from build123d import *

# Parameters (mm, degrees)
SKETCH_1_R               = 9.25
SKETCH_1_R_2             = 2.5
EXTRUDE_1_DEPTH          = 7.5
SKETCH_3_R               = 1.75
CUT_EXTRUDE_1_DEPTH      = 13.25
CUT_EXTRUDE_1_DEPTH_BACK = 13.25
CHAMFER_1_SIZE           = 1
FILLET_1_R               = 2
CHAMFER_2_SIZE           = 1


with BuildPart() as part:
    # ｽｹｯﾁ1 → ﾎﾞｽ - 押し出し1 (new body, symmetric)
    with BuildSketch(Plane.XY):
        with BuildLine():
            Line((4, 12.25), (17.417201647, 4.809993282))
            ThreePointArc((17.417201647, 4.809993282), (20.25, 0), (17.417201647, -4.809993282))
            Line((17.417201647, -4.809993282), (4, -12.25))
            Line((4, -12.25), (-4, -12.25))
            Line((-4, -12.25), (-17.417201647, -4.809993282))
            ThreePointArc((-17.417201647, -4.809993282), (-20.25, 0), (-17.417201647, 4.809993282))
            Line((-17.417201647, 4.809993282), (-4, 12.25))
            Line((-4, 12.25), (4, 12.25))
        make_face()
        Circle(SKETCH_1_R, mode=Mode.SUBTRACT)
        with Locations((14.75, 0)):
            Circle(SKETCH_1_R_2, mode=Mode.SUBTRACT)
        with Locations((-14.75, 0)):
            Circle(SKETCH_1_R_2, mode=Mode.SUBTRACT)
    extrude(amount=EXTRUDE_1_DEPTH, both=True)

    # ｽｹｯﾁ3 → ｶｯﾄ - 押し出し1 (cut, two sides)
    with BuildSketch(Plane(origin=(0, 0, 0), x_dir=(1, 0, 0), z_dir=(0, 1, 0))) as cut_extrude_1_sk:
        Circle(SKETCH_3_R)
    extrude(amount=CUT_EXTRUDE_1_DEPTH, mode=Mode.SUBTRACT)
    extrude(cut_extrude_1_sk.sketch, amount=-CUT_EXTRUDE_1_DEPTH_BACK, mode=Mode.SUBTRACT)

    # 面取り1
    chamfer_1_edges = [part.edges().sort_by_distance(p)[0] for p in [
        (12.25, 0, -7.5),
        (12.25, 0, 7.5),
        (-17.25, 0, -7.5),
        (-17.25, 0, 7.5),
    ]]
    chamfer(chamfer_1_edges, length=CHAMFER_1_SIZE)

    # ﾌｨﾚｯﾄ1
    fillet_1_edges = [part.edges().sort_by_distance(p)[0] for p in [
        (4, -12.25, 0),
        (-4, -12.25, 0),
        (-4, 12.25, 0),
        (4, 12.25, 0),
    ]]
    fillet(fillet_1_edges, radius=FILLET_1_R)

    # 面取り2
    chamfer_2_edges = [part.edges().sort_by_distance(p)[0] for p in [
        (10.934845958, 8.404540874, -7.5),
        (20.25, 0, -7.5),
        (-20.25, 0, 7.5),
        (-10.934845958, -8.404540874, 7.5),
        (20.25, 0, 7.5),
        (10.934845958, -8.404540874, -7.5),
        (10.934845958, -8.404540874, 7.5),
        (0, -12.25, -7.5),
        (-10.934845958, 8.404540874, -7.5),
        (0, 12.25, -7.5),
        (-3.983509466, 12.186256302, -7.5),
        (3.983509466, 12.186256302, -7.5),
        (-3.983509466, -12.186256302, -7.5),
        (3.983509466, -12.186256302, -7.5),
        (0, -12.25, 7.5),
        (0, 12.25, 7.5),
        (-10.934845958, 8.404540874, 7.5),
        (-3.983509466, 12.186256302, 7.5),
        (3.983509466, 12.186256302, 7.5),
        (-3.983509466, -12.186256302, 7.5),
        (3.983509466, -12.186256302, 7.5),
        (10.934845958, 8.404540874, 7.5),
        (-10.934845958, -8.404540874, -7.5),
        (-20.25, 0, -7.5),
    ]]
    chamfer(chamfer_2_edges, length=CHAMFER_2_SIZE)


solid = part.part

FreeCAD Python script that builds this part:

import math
import FreeCAD as App
import Part
import Sketcher
Q = App.Units.Quantity


def edges_at(feature, points):
    """Names of the edges that pass closest to the given points."""
    edges = feature.Shape.Edges
    near = lambda p: min(range(len(edges)), key=lambda i: edges[i].distToShape(Part.Vertex(*p))[0])
    return sorted({f"Edge{near(p) + 1}" for p in points})

doc = App.newDocument("Part")
body = doc.addObject("PartDesign::Body", "Body")

# Sketch on XY plane
sketch1 = body.newObject("Sketcher::SketchObject", "Sketch")
sketch1.AttachmentSupport = (doc.getObject("XY_Plane"), [""])
sketch1.MapMode = "FlatFace"
sketch1.addGeometry(Part.LineSegment(App.Vector(17.4, 4.8, 0), App.Vector(4, 12.2, 0)), False)
sketch1.addGeometry(Part.LineSegment(App.Vector(4, 12.2, 0), App.Vector(-4, 12.2, 0)), False)
sketch1.addGeometry(Part.LineSegment(App.Vector(-4, 12.2, 0), App.Vector(-17.4, 4.8, 0)), False)
sketch1.addGeometry(Part.ArcOfCircle(Part.Circle(App.Vector(-14.8, 0, 0), App.Vector(0, 0, 1), 5.5), math.radians(119), math.radians(241)), False)
sketch1.addGeometry(Part.LineSegment(App.Vector(-17.4, -4.8, 0), App.Vector(-4, -12.2, 0)), False)
sketch1.addGeometry(Part.LineSegment(App.Vector(-4, -12.2, 0), App.Vector(4, -12.2, 0)), False)
sketch1.addGeometry(Part.LineSegment(App.Vector(4, -12.2, 0), App.Vector(17.4, -4.8, 0)), False)
sketch1.addGeometry(Part.ArcOfCircle(Part.Circle(App.Vector(14.8, 0, 0), App.Vector(0, 0, 1), 5.5), math.radians(-61), math.radians(61)), False)
sketch1.addGeometry(Part.Circle(App.Vector(14.8, 0, 0), App.Vector(0, 0, 1), 2.5), False)
sketch1.addGeometry(Part.Circle(App.Vector(0, 0, 0), App.Vector(0, 0, 1), 9.2), False)
sketch1.addGeometry(Part.Circle(App.Vector(-14.8, 0, 0), App.Vector(0, 0, 1), 2.5), False)
sketch1.addConstraint(Sketcher.Constraint("Coincident", 0, 2, 1, 1))
sketch1.addConstraint(Sketcher.Constraint("Coincident", 1, 2, 2, 1))
sketch1.addConstraint(Sketcher.Constraint("Tangent", 2, 2, 3, 1))
sketch1.addConstraint(Sketcher.Constraint("Tangent", 3, 2, 4, 1))
sketch1.addConstraint(Sketcher.Constraint("Coincident", 4, 2, 5, 1))
sketch1.addConstraint(Sketcher.Constraint("Coincident", 5, 2, 6, 1))
sketch1.addConstraint(Sketcher.Constraint("Tangent", 6, 2, 7, 1))
sketch1.addConstraint(Sketcher.Constraint("Tangent", 7, 2, 0, 1))
sketch1.addConstraint(Sketcher.Constraint("Horizontal", 1))
sketch1.addConstraint(Sketcher.Constraint("Horizontal", 5))
sketch1.addConstraint(Sketcher.Constraint("Coincident", 9, 3, -1, 1))
sketch1.addConstraint(Sketcher.Constraint("Coincident", 8, 3, 7, 3))
sketch1.addConstraint(Sketcher.Constraint("Coincident", 10, 3, 3, 3))
sketch1.addConstraint(Sketcher.Constraint("Equal", 3, 7))
sketch1.addConstraint(Sketcher.Constraint("Equal", 8, 10))
sketch1.addConstraint(Sketcher.Constraint("Symmetric", 3, 3, 7, 3, -1, 1))
sketch1.addConstraint(Sketcher.Constraint("Symmetric", 0, 2, 4, 2, -1, 1))
sketch1.addConstraint(Sketcher.Constraint("Symmetric", 3, 2, 6, 2, -2))
sketch1.addConstraint(Sketcher.Constraint("Parallel", 2, 6))
sketch1.addConstraint(Sketcher.Constraint("Diameter", 8, Q("5 mm")))
sketch1.addConstraint(Sketcher.Constraint("Diameter", 9, Q("18.5 mm")))
sketch1.addConstraint(Sketcher.Constraint("Radius", 3, Q("5.5 mm")))
sketch1.addConstraint(Sketcher.Constraint("DistanceX", 1, 2, 1, 1, Q("8 mm")))
sketch1.addConstraint(Sketcher.Constraint("DistanceX", 3, 3, 7, 3, Q("29.5 mm")))
sketch1.addConstraint(Sketcher.Constraint("DistanceY", -1, 1, 0, 2, Q("12.25 mm")))
pad1 = body.newObject("PartDesign::Pad", "Pad")
pad1.Profile = sketch1
pad1.Length = 15
pad1.Midplane = True

# Sketch on XZ plane
sketch2 = body.newObject("Sketcher::SketchObject", "Sketch001")
sketch2.AttachmentSupport = (doc.getObject("XZ_Plane"), [""])
sketch2.MapMode = "FlatFace"
sketch2.addGeometry(Part.Circle(App.Vector(0, 0, 0), App.Vector(0, 0, 1), 1.8), False)
sketch2.addConstraint(Sketcher.Constraint("Coincident", 0, 3, -1, 1))
sketch2.addConstraint(Sketcher.Constraint("Diameter", 0, Q("3.5 mm")))
pocket1 = body.newObject("PartDesign::Pocket", "Pocket")
pocket1.Profile = sketch2
pocket1.Type = "ThroughAll"
pocket1.Midplane = True
doc.recompute()

chamfer = body.newObject("PartDesign::Chamfer", "Chamfer")
chamfer.Base = (pocket1, edges_at(pocket1, [
    (12.25, 0, -7.5),
    (12.25, 0, 7.5),
    (-17.25, 0, -7.5),
    (-17.25, 0, 7.5),
]))
chamfer.Size = 1
doc.recompute()

fillet = body.newObject("PartDesign::Fillet", "Fillet")
fillet.Base = (chamfer, edges_at(chamfer, [
    (4, -12.25, 0),
    (-4, -12.25, 0),
    (-4, 12.25, 0),
    (4, 12.25, 0),
]))
fillet.Radius = 2
doc.recompute()

chamfer2 = body.newObject("PartDesign::Chamfer", "Chamfer001")
chamfer2.Base = (fillet, edges_at(fillet, [
    (10.935, 8.405, -7.5),
    (20.25, 0, -7.5),
    (-20.25, 0, 7.5),
    (-10.935, -8.405, 7.5),
    (20.25, 0, 7.5),
    (10.935, -8.405, -7.5),
    (10.935, -8.405, 7.5),
    (0, -12.25, -7.5),
    (-10.935, 8.405, -7.5),
    (0, 12.25, -7.5),
    (-3.984, 12.186, -7.5),
    (3.984, 12.186, -7.5),
    (-3.984, -12.186, -7.5),
    (3.984, -12.186, -7.5),
    (0, -12.25, 7.5),
    (0, 12.25, 7.5),
    (-10.935, 8.405, 7.5),
    (-3.984, 12.186, 7.5),
    (3.984, 12.186, 7.5),
    (-3.984, -12.186, 7.5),
    (3.984, -12.186, 7.5),
    (10.935, 8.405, 7.5),
    (-10.935, -8.405, -7.5),
    (-20.25, 0, -7.5),
]))
chamfer2.Size = 1

doc.recompute()
